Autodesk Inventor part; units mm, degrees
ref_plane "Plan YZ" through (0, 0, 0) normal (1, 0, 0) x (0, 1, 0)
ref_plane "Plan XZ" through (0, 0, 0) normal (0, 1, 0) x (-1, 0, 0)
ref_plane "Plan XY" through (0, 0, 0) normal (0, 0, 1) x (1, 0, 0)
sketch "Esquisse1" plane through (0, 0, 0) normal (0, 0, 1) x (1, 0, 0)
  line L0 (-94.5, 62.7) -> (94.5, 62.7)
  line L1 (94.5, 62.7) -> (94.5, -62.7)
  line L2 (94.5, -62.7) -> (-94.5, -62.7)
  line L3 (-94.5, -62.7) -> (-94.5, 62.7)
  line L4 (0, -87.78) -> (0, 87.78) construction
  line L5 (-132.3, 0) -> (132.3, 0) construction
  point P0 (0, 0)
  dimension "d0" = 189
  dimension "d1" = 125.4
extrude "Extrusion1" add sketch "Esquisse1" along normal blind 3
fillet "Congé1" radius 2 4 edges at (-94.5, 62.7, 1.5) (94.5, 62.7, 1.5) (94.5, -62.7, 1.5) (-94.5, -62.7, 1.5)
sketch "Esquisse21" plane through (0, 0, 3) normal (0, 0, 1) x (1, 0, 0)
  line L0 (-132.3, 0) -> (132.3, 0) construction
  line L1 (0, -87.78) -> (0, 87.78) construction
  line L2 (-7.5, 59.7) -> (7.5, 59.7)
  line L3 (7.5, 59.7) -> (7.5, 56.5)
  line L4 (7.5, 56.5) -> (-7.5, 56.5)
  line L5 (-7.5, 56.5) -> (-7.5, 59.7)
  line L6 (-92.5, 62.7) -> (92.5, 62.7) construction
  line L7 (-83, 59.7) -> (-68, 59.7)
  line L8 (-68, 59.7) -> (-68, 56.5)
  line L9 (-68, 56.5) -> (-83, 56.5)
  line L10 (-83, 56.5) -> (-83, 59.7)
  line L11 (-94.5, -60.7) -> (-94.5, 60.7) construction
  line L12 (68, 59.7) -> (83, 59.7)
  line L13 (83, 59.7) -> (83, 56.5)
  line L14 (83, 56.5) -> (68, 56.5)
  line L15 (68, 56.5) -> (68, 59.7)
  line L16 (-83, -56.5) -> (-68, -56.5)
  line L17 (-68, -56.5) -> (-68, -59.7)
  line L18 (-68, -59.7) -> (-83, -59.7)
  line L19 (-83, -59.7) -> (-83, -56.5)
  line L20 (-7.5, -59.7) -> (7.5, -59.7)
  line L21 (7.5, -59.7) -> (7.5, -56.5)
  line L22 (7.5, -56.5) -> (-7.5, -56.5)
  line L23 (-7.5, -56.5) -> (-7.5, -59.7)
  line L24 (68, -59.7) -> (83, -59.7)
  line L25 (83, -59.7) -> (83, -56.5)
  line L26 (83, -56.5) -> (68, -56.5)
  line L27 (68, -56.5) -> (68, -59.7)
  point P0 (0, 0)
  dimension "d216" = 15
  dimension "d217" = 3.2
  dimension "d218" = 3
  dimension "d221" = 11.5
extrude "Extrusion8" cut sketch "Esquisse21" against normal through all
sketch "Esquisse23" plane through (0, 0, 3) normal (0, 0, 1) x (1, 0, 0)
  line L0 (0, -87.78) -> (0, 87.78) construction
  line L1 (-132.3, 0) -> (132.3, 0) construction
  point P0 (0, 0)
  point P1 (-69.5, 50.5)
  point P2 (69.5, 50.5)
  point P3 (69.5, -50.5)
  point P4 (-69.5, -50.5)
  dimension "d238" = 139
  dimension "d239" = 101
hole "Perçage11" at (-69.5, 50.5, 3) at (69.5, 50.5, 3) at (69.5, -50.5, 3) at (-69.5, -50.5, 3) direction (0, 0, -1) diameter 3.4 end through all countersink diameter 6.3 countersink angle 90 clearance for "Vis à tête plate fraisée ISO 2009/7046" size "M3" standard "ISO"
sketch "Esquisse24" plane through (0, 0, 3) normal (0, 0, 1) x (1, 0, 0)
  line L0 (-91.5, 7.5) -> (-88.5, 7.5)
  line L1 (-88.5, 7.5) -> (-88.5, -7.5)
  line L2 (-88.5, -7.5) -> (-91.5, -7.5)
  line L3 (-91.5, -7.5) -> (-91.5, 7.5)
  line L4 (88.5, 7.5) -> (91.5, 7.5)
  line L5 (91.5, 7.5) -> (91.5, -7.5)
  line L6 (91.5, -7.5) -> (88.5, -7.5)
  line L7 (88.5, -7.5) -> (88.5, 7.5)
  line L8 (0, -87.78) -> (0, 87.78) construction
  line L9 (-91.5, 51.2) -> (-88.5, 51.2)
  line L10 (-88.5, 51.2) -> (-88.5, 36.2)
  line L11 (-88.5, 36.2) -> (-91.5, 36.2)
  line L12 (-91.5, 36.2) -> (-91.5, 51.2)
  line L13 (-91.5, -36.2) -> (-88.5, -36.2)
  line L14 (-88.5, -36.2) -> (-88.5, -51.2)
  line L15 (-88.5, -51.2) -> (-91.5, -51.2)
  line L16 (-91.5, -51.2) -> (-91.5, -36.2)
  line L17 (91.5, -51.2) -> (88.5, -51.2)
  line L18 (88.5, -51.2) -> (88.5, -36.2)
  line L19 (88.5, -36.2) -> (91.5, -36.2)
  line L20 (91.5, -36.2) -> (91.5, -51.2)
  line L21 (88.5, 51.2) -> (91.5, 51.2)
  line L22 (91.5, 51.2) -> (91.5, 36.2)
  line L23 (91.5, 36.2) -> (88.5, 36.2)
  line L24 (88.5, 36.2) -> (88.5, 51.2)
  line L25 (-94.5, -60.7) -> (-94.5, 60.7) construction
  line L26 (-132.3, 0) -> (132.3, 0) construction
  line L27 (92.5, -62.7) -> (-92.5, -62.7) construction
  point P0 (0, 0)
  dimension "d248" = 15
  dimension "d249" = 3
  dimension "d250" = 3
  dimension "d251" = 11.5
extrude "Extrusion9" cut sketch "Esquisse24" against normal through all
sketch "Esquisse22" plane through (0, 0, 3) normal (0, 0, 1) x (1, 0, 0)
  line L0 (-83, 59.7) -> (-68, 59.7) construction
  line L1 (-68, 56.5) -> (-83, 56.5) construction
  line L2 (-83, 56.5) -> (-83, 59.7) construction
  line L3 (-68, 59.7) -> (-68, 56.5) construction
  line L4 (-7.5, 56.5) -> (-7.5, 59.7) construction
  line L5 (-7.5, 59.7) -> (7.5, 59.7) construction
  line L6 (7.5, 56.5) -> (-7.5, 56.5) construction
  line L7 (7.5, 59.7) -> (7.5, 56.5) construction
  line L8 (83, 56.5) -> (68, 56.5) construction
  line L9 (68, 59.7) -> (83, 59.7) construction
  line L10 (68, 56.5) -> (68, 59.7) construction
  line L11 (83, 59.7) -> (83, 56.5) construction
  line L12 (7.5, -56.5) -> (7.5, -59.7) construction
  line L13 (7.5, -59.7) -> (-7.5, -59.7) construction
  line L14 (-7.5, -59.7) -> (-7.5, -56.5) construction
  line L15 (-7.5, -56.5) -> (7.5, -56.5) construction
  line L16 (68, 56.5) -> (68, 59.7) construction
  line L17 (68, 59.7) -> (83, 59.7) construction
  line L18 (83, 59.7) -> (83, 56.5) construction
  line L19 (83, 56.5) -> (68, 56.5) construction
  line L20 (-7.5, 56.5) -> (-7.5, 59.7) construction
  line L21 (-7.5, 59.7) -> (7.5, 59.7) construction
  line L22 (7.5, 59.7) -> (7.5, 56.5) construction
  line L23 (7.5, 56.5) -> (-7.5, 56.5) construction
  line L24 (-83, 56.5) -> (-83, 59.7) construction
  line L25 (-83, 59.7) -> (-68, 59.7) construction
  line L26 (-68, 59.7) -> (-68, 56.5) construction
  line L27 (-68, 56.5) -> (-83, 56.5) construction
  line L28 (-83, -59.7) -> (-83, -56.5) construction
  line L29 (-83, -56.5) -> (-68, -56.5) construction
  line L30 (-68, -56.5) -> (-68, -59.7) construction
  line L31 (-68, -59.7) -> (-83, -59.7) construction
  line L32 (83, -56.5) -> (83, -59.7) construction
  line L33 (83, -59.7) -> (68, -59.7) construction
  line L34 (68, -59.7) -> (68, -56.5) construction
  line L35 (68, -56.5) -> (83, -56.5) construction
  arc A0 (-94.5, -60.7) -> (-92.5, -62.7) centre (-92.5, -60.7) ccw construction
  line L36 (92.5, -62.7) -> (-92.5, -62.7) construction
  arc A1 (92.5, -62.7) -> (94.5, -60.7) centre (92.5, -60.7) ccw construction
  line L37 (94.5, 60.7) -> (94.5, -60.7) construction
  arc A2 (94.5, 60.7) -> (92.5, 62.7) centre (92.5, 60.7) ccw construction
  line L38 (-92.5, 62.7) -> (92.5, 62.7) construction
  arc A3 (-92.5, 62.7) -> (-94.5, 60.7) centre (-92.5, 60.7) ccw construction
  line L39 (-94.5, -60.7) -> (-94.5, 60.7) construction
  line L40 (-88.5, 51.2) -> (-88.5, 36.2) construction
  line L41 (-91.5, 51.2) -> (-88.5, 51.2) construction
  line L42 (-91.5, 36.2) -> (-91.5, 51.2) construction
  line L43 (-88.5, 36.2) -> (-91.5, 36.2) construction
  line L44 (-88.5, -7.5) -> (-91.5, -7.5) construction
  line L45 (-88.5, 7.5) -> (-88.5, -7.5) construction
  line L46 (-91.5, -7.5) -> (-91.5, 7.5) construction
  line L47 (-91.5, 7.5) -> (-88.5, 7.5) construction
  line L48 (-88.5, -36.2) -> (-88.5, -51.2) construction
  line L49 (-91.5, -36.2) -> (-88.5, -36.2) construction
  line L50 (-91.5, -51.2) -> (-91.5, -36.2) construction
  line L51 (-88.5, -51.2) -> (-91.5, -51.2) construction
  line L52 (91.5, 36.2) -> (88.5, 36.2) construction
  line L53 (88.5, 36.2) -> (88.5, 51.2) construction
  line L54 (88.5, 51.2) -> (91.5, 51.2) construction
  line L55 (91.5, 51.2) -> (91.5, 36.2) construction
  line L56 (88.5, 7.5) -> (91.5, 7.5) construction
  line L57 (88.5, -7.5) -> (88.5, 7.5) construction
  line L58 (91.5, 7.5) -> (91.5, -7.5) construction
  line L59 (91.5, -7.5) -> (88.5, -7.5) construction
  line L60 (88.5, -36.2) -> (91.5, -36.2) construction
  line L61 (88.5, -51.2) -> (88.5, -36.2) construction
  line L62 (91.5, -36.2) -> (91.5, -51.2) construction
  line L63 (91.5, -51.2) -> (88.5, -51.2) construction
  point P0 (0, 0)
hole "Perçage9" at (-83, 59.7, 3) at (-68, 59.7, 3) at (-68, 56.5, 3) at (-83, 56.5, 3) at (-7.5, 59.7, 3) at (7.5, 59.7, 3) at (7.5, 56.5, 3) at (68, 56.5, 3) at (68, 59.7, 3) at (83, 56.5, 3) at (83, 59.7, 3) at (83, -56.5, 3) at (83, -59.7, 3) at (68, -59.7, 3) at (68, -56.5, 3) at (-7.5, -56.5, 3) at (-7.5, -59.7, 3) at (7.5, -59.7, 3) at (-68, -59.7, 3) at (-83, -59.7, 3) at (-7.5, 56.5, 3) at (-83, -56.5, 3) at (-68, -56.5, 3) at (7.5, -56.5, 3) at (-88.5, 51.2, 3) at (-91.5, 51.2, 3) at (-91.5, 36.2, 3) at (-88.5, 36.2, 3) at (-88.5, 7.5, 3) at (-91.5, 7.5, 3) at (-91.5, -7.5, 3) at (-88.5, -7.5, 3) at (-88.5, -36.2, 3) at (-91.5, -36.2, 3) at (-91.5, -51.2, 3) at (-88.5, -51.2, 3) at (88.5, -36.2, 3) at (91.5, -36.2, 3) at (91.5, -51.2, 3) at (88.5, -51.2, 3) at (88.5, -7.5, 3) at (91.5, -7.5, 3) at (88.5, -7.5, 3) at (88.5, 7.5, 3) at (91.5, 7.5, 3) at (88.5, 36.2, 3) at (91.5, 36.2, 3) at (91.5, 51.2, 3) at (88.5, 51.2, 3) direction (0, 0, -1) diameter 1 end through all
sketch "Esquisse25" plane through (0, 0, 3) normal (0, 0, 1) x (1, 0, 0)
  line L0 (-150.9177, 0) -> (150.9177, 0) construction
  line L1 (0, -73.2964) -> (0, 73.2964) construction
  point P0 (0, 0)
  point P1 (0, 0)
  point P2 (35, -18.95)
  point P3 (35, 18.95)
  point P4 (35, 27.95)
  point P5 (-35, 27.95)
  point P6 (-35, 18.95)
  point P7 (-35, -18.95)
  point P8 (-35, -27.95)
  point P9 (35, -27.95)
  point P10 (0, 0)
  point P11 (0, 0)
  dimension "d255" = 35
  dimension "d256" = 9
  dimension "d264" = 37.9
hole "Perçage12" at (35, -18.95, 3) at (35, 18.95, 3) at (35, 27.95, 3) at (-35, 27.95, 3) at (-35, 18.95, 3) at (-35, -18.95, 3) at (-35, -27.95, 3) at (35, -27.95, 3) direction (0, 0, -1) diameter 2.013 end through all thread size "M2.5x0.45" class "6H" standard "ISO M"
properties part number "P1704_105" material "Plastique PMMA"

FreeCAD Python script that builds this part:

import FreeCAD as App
import Part
import Sketcher

V = App.Vector
Q = App.Units.Quantity


def edges_at(feature, points):
    """Names of the edges that pass closest to the given points."""
    edges = feature.Shape.Edges
    near = lambda p: min(range(len(edges)), key=lambda i: edges[i].distToShape(Part.Vertex(*p))[0])
    return sorted({f"Edge{near(p) + 1}" for p in points})


def add_polygon(sketch, points):
    """Adds a closed chain of lines whose ends are joined by coincident constraints."""
    first, n = sketch.GeometryCount, len(points)
    for a, b in zip(points, points[1:] + points[:1]):
        sketch.addGeometry(Part.LineSegment(App.Vector(*a, 0), App.Vector(*b, 0)), False)
    for i in range(n):
        sketch.addConstraint(Sketcher.Constraint("Coincident", first + i, 2, first + (i + 1) % n, 1))

doc = App.newDocument("Part")
body = doc.addObject("PartDesign::Body", "Body")

# Sketch on XY plane
sketch1 = body.newObject("Sketcher::SketchObject", "Sketch")
sketch1.AttachmentSupport = (doc.getObject("XY_Plane"), [""])
sketch1.MapMode = "FlatFace"
add_polygon(sketch1, [(94.5, 62.7), (-94.5, 62.7), (-94.5, -62.7), (94.5, -62.7)])  # lines 0-3
sketch1.addConstraint([
    Sketcher.Constraint("Horizontal", 0),
    Sketcher.Constraint("Vertical", 1),
    Sketcher.Constraint("Horizontal", 2),
    Sketcher.Constraint("Vertical", 3),
    Sketcher.Constraint("Symmetric", 0, 2, 2, 2, -1, 1),
    Sketcher.Constraint("DistanceX", 0, 2, 0, 1, Q("189 mm")),
    Sketcher.Constraint("DistanceY", 1, 2, 1, 1, Q("125.4 mm")),
])
pad1 = body.newObject("PartDesign::Pad", "Pad")
pad1.Profile = sketch1
pad1.Length = 3
doc.recompute()

fillet = body.newObject("PartDesign::Fillet", "Fillet")
fillet.Base = (pad1, edges_at(pad1, [
    (-94.5, 62.7, 1.5),
    (94.5, 62.7, 1.5),
    (94.5, -62.7, 1.5),
    (-94.5, -62.7, 1.5),
]))
fillet.Radius = 2

# Sketch on XY plane
sketch2 = body.newObject("Sketcher::SketchObject", "Sketch001")
sketch2.AttachmentSupport = (doc.getObject("XY_Plane"), [""])
sketch2.MapMode = "FlatFace"
sketch2.AttachmentOffset = App.Placement(V(0, 0, 3), App.Rotation())
add_polygon(sketch2, [(7.5, 59.7), (-7.5, 59.7), (-7.5, 56.5), (7.5, 56.5)])  # lines 0-3
add_polygon(sketch2, [(-68, 59.7), (-83, 59.7), (-83, 56.5), (-68, 56.5)])  # lines 4-7
add_polygon(sketch2, [(83, 59.7), (68, 59.7), (68, 56.5), (83, 56.5)])  # lines 8-11
add_polygon(sketch2, [(-68, -56.5), (-83, -56.5), (-83, -59.7), (-68, -59.7)])  # lines 12-15
add_polygon(sketch2, [(-7.5, -56.5), (-7.5, -59.7), (7.5, -59.7), (7.5, -56.5)])  # lines 16-19
add_polygon(sketch2, [(68, -56.5), (68, -59.7), (83, -59.7), (83, -56.5)])  # lines 20-23
sketch2.addConstraint([
    Sketcher.Constraint("Horizontal", 0),
    Sketcher.Constraint("Vertical", 1),
    Sketcher.Constraint("Horizontal", 2),
    Sketcher.Constraint("Vertical", 3),
    Sketcher.Constraint("Horizontal", 4),
    Sketcher.Constraint("Vertical", 5),
    Sketcher.Constraint("Horizontal", 6),
    Sketcher.Constraint("Vertical", 7),
    Sketcher.Constraint("Horizontal", 8),
    Sketcher.Constraint("Vertical", 9),
    Sketcher.Constraint("Horizontal", 10),
    Sketcher.Constraint("Vertical", 11),
    Sketcher.Constraint("Horizontal", 12),
    Sketcher.Constraint("Vertical", 13),
    Sketcher.Constraint("Horizontal", 14),
    Sketcher.Constraint("Vertical", 15),
    Sketcher.Constraint("Vertical", 16),
    Sketcher.Constraint("Horizontal", 17),
    Sketcher.Constraint("Vertical", 18),
    Sketcher.Constraint("Horizontal", 19),
    Sketcher.Constraint("Vertical", 20),
    Sketcher.Constraint("Horizontal", 21),
    Sketcher.Constraint("Vertical", 22),
    Sketcher.Constraint("Horizontal", 23),
    Sketcher.Constraint("Symmetric", 10, 2, 12, 2, -1, 1),
    Sketcher.Constraint("Symmetric", 8, 2, 14, 2, -1, 1),
    Sketcher.Constraint("Symmetric", 3, 2, 16, 2, -1, 1),
    Sketcher.Constraint("Symmetric", 1, 2, 18, 2, -1, 1),
    Sketcher.Constraint("Symmetric", 7, 2, 20, 2, -1, 1),
    Sketcher.Constraint("Symmetric", 5, 2, 22, 2, -1, 1),
    Sketcher.Constraint("Symmetric", 7, 2, 8, 2, -2),
    Sketcher.Constraint("Symmetric", 5, 2, 10, 2, -2),
    Sketcher.Constraint("Horizontal", 3, 2, 4, 2),
    Sketcher.Constraint("Horizontal", 2, 2, 5, 2),
    Sketcher.Constraint("Vertical", 1, 2, 16, 2),
    Sketcher.Constraint("Equal", 2, 4),
    Sketcher.Constraint("DistanceX", 0, 2, 0, 1, Q("15 mm")),
    Sketcher.Constraint("DistanceY", 1, 2, 1, 1, Q("3.2 mm")),
    Sketcher.Constraint("DistanceX", 4, 2, -1, 1, Q("83 mm")),
    Sketcher.Constraint("DistanceY", 12, 2, 5, 2, Q("113 mm")),
])
pocket1 = body.newObject("PartDesign::Pocket", "Pocket")
pocket1.Profile = sketch2
pocket1.Type = "ThroughAll"

# Sketch on XY plane
sketch3 = body.newObject("Sketcher::SketchObject", "Sketch002")
sketch3.AttachmentSupport = (doc.getObject("XY_Plane"), [""])
sketch3.MapMode = "FlatFace"
sketch3.AttachmentOffset = App.Placement(V(0, 0, 3), App.Rotation())
sketch3.addGeometry([
    Part.Circle(V(-69.5, 50.5, 0), V(0, 0, 1), 1.7),
    Part.Circle(V(69.5, 50.5, 0), V(0, 0, 1), 1.7),
    Part.Circle(V(69.5, -50.5, 0), V(0, 0, 1), 1.7),
    Part.Circle(V(-69.5, -50.5, 0), V(0, 0, 1), 1.7),
], False)
sketch3.addConstraint([
    Sketcher.Constraint("Equal", 0, 1),
    Sketcher.Constraint("Equal", 1, 2),
    Sketcher.Constraint("Equal", 2, 3),
    Sketcher.Constraint("Symmetric", 0, 3, 2, 3, -1, 1),
    Sketcher.Constraint("Symmetric", 1, 3, 3, 3, -1, 1),
    Sketcher.Constraint("Symmetric", 0, 3, 1, 3, -2),
    Sketcher.Constraint("Diameter", 0, Q("3.4 mm")),
    Sketcher.Constraint("DistanceX", 0, 3, 1, 3, Q("139 mm")),
    Sketcher.Constraint("DistanceY", 2, 3, 1, 3, Q("101 mm")),
])
doc.recompute()
hole = body.newObject("PartDesign::Hole", "Hole")
hole.Profile = sketch3
hole.ThreadType = "None"
hole.Diameter = 3.4
hole.DepthType = "ThroughAll"
hole.HoleCutType = "Countersink"
hole.HoleCutDiameter = 6.3
hole.HoleCutCountersinkAngle = 90

# Sketch on XY plane
sketch4 = body.newObject("Sketcher::SketchObject", "Sketch003")
sketch4.AttachmentSupport = (doc.getObject("XY_Plane"), [""])
sketch4.MapMode = "FlatFace"
sketch4.AttachmentOffset = App.Placement(V(0, 0, 3), App.Rotation())
add_polygon(sketch4, [(-88.5, 7.5), (-91.5, 7.5), (-91.5, -7.5), (-88.5, -7.5)])  # lines 0-3
add_polygon(sketch4, [(91.5, 7.5), (88.5, 7.5), (88.5, -7.5), (91.5, -7.5)])  # lines 4-7
add_polygon(sketch4, [(-88.5, 51.2), (-91.5, 51.2), (-91.5, 36.2), (-88.5, 36.2)])  # lines 8-11
add_polygon(sketch4, [(-88.5, -36.2), (-91.5, -36.2), (-91.5, -51.2), (-88.5, -51.2)])  # lines 12-15
add_polygon(sketch4, [(88.5, -51.2), (91.5, -51.2), (91.5, -36.2), (88.5, -36.2)])  # lines 16-19
add_polygon(sketch4, [(91.5, 51.2), (88.5, 51.2), (88.5, 36.2), (91.5, 36.2)])  # lines 20-23
sketch4.addConstraint([
    Sketcher.Constraint("Horizontal", 0),
    Sketcher.Constraint("Vertical", 1),
    Sketcher.Constraint("Horizontal", 2),
    Sketcher.Constraint("Vertical", 3),
    Sketcher.Constraint("Horizontal", 4),
    Sketcher.Constraint("Vertical", 5),
    Sketcher.Constraint("Horizontal", 6),
    Sketcher.Constraint("Vertical", 7),
    Sketcher.Constraint("Horizontal", 8),
    Sketcher.Constraint("Vertical", 9),
    Sketcher.Constraint("Horizontal", 10),
    Sketcher.Constraint("Vertical", 11),
    Sketcher.Constraint("Horizontal", 12),
    Sketcher.Constraint("Vertical", 13),
    Sketcher.Constraint("Horizontal", 14),
    Sketcher.Constraint("Vertical", 15),
    Sketcher.Constraint("Horizontal", 16),
    Sketcher.Constraint("Vertical", 17),
    Sketcher.Constraint("Horizontal", 18),
    Sketcher.Constraint("Vertical", 19),
    Sketcher.Constraint("Horizontal", 20),
    Sketcher.Constraint("Vertical", 21),
    Sketcher.Constraint("Horizontal", 22),
    Sketcher.Constraint("Vertical", 23),
    Sketcher.Constraint("Symmetric", 2, 2, 4, 2, -1, 1),
    Sketcher.Constraint("Symmetric", 0, 2, 6, 2, -1, 1),
    Sketcher.Constraint("Symmetric", 8, 2, 16, 2, -1, 1),
    Sketcher.Constraint("Symmetric", 10, 2, 18, 2, -1, 1),
    Sketcher.Constraint("Symmetric", 14, 2, 20, 2, -1, 1),
    Sketcher.Constraint("Symmetric", 12, 2, 22, 2, -1, 1),
    Sketcher.Constraint("Symmetric", 13, 2, 16, 2, -2),
    Sketcher.Constraint("Symmetric", 15, 2, 18, 2, -2),
    Sketcher.Constraint("Horizontal", 3, 2, 4, 2),
    Sketcher.Constraint("Vertical", 1, 2, 8, 2),
    Sketcher.Constraint("Vertical", 3, 2, 10, 2),
    Sketcher.Constraint("Equal", 7, 9),
    Sketcher.Constraint("DistanceX", 0, 2, 0, 1, Q("3 mm")),
    Sketcher.Constraint("DistanceY", 1, 2, 1, 1, Q("15 mm")),
    Sketcher.Constraint("DistanceX", 3, 2, 4, 2, Q("177 mm")),
    Sketcher.Constraint("DistanceY", -1, 1, 8, 2, Q("51.2 mm")),
])
pocket2 = body.newObject("PartDesign::Pocket", "Pocket001")
pocket2.Profile = sketch4
pocket2.Type = "ThroughAll"

# Sketch on XY plane
sketch5 = body.newObject("Sketcher::SketchObject", "Sketch004")
sketch5.AttachmentSupport = (doc.getObject("XY_Plane"), [""])
sketch5.MapMode = "FlatFace"
sketch5.AttachmentOffset = App.Placement(V(0, 0, 3), App.Rotation())
sketch5.addGeometry([
    Part.Circle(V(-83, 59.7, 0), V(0, 0, 1), 0.5),  # 0
    Part.Circle(V(-68, 59.7, 0), V(0, 0, 1), 0.5),  # 1
    Part.Circle(V(-68, 56.5, 0), V(0, 0, 1), 0.5),  # 2
    Part.Circle(V(-83, 56.5, 0), V(0, 0, 1), 0.5),  # 3
    Part.Circle(V(-7.5, 59.7, 0), V(0, 0, 1), 0.5),  # 4
    Part.Circle(V(7.5, 59.7, 0), V(0, 0, 1), 0.5),  # 5
    Part.Circle(V(7.5, 56.5, 0), V(0, 0, 1), 0.5),  # 6
    Part.Circle(V(68, 56.5, 0), V(0, 0, 1), 0.5),  # 7
    Part.Circle(V(68, 59.7, 0), V(0, 0, 1), 0.5),  # 8
    Part.Circle(V(83, 56.5, 0), V(0, 0, 1), 0.5),  # 9
    Part.Circle(V(83, 59.7, 0), V(0, 0, 1), 0.5),  # 10
    Part.Circle(V(83, -56.5, 0), V(0, 0, 1), 0.5),  # 11
    Part.Circle(V(83, -59.7, 0), V(0, 0, 1), 0.5),  # 12
    Part.Circle(V(68, -59.7, 0), V(0, 0, 1), 0.5),  # 13
    Part.Circle(V(68, -56.5, 0), V(0, 0, 1), 0.5),  # 14
    Part.Circle(V(-7.5, -56.5, 0), V(0, 0, 1), 0.5),  # 15
    Part.Circle(V(-7.5, -59.7, 0), V(0, 0, 1), 0.5),  # 16
    Part.Circle(V(7.5, -59.7, 0), V(0, 0, 1), 0.5),  # 17
    Part.Circle(V(-68, -59.7, 0), V(0, 0, 1), 0.5),  # 18
    Part.Circle(V(-83, -59.7, 0), V(0, 0, 1), 0.5),  # 19
    Part.Circle(V(-7.5, 56.5, 0), V(0, 0, 1), 0.5),  # 20
    Part.Circle(V(-83, -56.5, 0), V(0, 0, 1), 0.5),  # 21
    Part.Circle(V(-68, -56.5, 0), V(0, 0, 1), 0.5),  # 22
    Part.Circle(V(7.5, -56.5, 0), V(0, 0, 1), 0.5),  # 23
    Part.Circle(V(-88.5, 51.2, 0), V(0, 0, 1), 0.5),  # 24
    Part.Circle(V(-91.5, 51.2, 0), V(0, 0, 1), 0.5),  # 25
    Part.Circle(V(-91.5, 36.2, 0), V(0, 0, 1), 0.5),  # 26
    Part.Circle(V(-88.5, 36.2, 0), V(0, 0, 1), 0.5),  # 27
    Part.Circle(V(-88.5, 7.5, 0), V(0, 0, 1), 0.5),  # 28
    Part.Circle(V(-91.5, 7.5, 0), V(0, 0, 1), 0.5),  # 29
    Part.Circle(V(-91.5, -7.5, 0), V(0, 0, 1), 0.5),  # 30
    Part.Circle(V(-88.5, -7.5, 0), V(0, 0, 1), 0.5),  # 31
    Part.Circle(V(-88.5, -36.2, 0), V(0, 0, 1), 0.5),  # 32
    Part.Circle(V(-91.5, -36.2, 0), V(0, 0, 1), 0.5),  # 33
    Part.Circle(V(-91.5, -51.2, 0), V(0, 0, 1), 0.5),  # 34
    Part.Circle(V(-88.5, -51.2, 0), V(0, 0, 1), 0.5),  # 35
    Part.Circle(V(88.5, -36.2, 0), V(0, 0, 1), 0.5),  # 36
    Part.Circle(V(91.5, -36.2, 0), V(0, 0, 1), 0.5),  # 37
    Part.Circle(V(91.5, -51.2, 0), V(0, 0, 1), 0.5),  # 38
    Part.Circle(V(88.5, -51.2, 0), V(0, 0, 1), 0.5),  # 39
    Part.Circle(V(88.5, -7.5, 0), V(0, 0, 1), 0.5),  # 40
    Part.Circle(V(91.5, -7.5, 0), V(0, 0, 1), 0.5),  # 41
    Part.Circle(V(88.5, -7.5, 0), V(0, 0, 1), 0.5),  # 42
    Part.Circle(V(88.5, 7.5, 0), V(0, 0, 1), 0.5),  # 43
    Part.Circle(V(91.5, 7.5, 0), V(0, 0, 1), 0.5),  # 44
    Part.Circle(V(88.5, 36.2, 0), V(0, 0, 1), 0.5),  # 45
    Part.Circle(V(91.5, 36.2, 0), V(0, 0, 1), 0.5),  # 46
    Part.Circle(V(91.5, 51.2, 0), V(0, 0, 1), 0.5),  # 47
    Part.Circle(V(88.5, 51.2, 0), V(0, 0, 1), 0.5),  # 48
], False)
sketch5.addConstraint([
    Sketcher.Constraint("Coincident", 42, 3, 40, 3),
    Sketcher.Constraint("Equal", 0, 1),
    Sketcher.Constraint("Equal", 1, 2),
    Sketcher.Constraint("Equal", 2, 3),
    Sketcher.Constraint("Equal", 3, 4),
    Sketcher.Constraint("Equal", 4, 5),
    Sketcher.Constraint("Equal", 5, 6),
    Sketcher.Constraint("Equal", 6, 7),
    Sketcher.Constraint("Equal", 7, 8),
    Sketcher.Constraint("Equal", 8, 9),
    Sketcher.Constraint("Equal", 9, 10),
    Sketcher.Constraint("Equal", 10, 11),
    Sketcher.Constraint("Equal", 11, 12),
    Sketcher.Constraint("Equal", 12, 13),
    Sketcher.Constraint("Equal", 13, 14),
    Sketcher.Constraint("Equal", 14, 15),
    Sketcher.Constraint("Equal", 15, 16),
    Sketcher.Constraint("Equal", 16, 17),
    Sketcher.Constraint("Equal", 17, 18),
    Sketcher.Constraint("Equal", 18, 19),
    Sketcher.Constraint("Equal", 19, 20),
    Sketcher.Constraint("Equal", 20, 21),
    Sketcher.Constraint("Equal", 21, 22),
    Sketcher.Constraint("Equal", 22, 23),
    Sketcher.Constraint("Equal", 23, 24),
    Sketcher.Constraint("Equal", 24, 25),
    Sketcher.Constraint("Equal", 25, 26),
    Sketcher.Constraint("Equal", 26, 27),
    Sketcher.Constraint("Equal", 27, 28),
    Sketcher.Constraint("Equal", 28, 29),
    Sketcher.Constraint("Equal", 29, 30),
    Sketcher.Constraint("Equal", 30, 31),
    Sketcher.Constraint("Equal", 31, 32),
    Sketcher.Constraint("Equal", 32, 33),
    Sketcher.Constraint("Equal", 33, 34),
    Sketcher.Constraint("Equal", 34, 35),
    Sketcher.Constraint("Equal", 35, 36),
    Sketcher.Constraint("Equal", 36, 37),
    Sketcher.Constraint("Equal", 37, 38),
    Sketcher.Constraint("Equal", 38, 39),
    Sketcher.Constraint("Equal", 39, 40),
    Sketcher.Constraint("Equal", 40, 41),
    Sketcher.Constraint("Equal", 41, 42),
    Sketcher.Constraint("Equal", 42, 43),
    Sketcher.Constraint("Equal", 43, 44),
    Sketcher.Constraint("Equal", 44, 45),
    Sketcher.Constraint("Equal", 45, 46),
    Sketcher.Constraint("Equal", 46, 47),
    Sketcher.Constraint("Equal", 47, 48),
    Sketcher.Constraint("Symmetric", 3, 3, 11, 3, -1, 1),
    Sketcher.Constraint("Symmetric", 0, 3, 12, 3, -1, 1),
    Sketcher.Constraint("Symmetric", 1, 3, 13, 3, -1, 1),
    Sketcher.Constraint("Symmetric", 2, 3, 14, 3, -1, 1),
    Sketcher.Constraint("Symmetric", 6, 3, 15, 3, -1, 1),
    Sketcher.Constraint("Symmetric", 5, 3, 16, 3, -1, 1),
    Sketcher.Constraint("Symmetric", 4, 3, 17, 3, -1, 1),
    Sketcher.Constraint("Symmetric", 8, 3, 18, 3, -1, 1),
    Sketcher.Constraint("Symmetric", 10, 3, 19, 3, -1, 1),
    Sketcher.Constraint("Symmetric", 9, 3, 21, 3, -1, 1),
    Sketcher.Constraint("Symmetric", 7, 3, 22, 3, -1, 1),
    Sketcher.Constraint("Symmetric", 20, 3, 23, 3, -1, 1),
    Sketcher.Constraint("Symmetric", 27, 3, 36, 3, -1, 1),
    Sketcher.Constraint("Symmetric", 26, 3, 37, 3, -1, 1),
    Sketcher.Constraint("Symmetric", 25, 3, 38, 3, -1, 1),
    Sketcher.Constraint("Symmetric", 24, 3, 39, 3, -1, 1),
    Sketcher.Constraint("Symmetric", 28, 3, 40, 3, -1, 1),
    Sketcher.Constraint("Symmetric", 29, 3, 41, 3, -1, 1),
    Sketcher.Constraint("Symmetric", 31, 3, 43, 3, -1, 1),
    Sketcher.Constraint("Symmetric", 30, 3, 44, 3, -1, 1),
    Sketcher.Constraint("Symmetric", 32, 3, 45, 3, -1, 1),
    Sketcher.Constraint("Symmetric", 33, 3, 46, 3, -1, 1),
    Sketcher.Constraint("Symmetric", 34, 3, 47, 3, -1, 1),
    Sketcher.Constraint("Symmetric", 35, 3, 48, 3, -1, 1),
    Sketcher.Constraint("Symmetric", 4, 3, 5, 3, -2),
    Sketcher.Constraint("Symmetric", 2, 3, 7, 3, -2),
    Sketcher.Constraint("Symmetric", 1, 3, 8, 3, -2),
    Sketcher.Constraint("Symmetric", 3, 3, 9, 3, -2),
    Sketcher.Constraint("Symmetric", 0, 3, 10, 3, -2),
    Sketcher.Constraint("Symmetric", 6, 3, 20, 3, -2),
    Sketcher.Constraint("Symmetric", 32, 3, 36, 3, -2),
    Sketcher.Constraint("Symmetric", 33, 3, 37, 3, -2),
    Sketcher.Constraint("Symmetric", 34, 3, 38, 3, -2),
    Sketcher.Constraint("Symmetric", 35, 3, 39, 3, -2),
    Sketcher.Constraint("Symmetric", 31, 3, 40, 3, -2),
    Sketcher.Constraint("Symmetric", 30, 3, 41, 3, -2),
    Sketcher.Constraint("Horizontal", 0, 3, 1, 3),
    Sketcher.Constraint("Horizontal", 2, 3, 3, 3),
    Sketcher.Constraint("Horizontal", 1, 3, 4, 3),
    Sketcher.Constraint("Horizontal", 3, 3, 6, 3),
    Sketcher.Constraint("Horizontal", 24, 3, 25, 3),
    Sketcher.Constraint("Horizontal", 26, 3, 27, 3),
    Sketcher.Constraint("Horizontal", 28, 3, 29, 3),
    Sketcher.Constraint("Vertical", 1, 3, 2, 3),
    Sketcher.Constraint("Vertical", 0, 3, 3, 3),
    Sketcher.Constraint("Vertical", 5, 3, 6, 3),
    Sketcher.Constraint("Vertical", 25, 3, 26, 3),
    Sketcher.Constraint("Vertical", 24, 3, 27, 3),
    Sketcher.Constraint("Vertical", 27, 3, 28, 3),
    Sketcher.Constraint("Vertical", 26, 3, 29, 3),
    Sketcher.Constraint("Diameter", 0, Q("1 mm")),
    Sketcher.Constraint("DistanceX", 0, 3, -1, 1, Q("83 mm")),
    Sketcher.Constraint("DistanceX", 1, 3, -1, 1, Q("68 mm")),
    Sketcher.Constraint("DistanceX", 4, 3, 5, 3, Q("15 mm")),
    Sketcher.Constraint("DistanceY", 11, 3, 9, 3, Q("113 mm")),
    Sketcher.Constraint("DistanceX", 24, 3, 20, 3, Q("81 mm")),
    Sketcher.Constraint("DistanceX", 25, 3, 24, 3, Q("3 mm")),
    Sketcher.Constraint("DistanceY", 26, 3, 25, 3, Q("15 mm")),
    Sketcher.Constraint("DistanceY", 28, 3, 3, 3, Q("49 mm")),
    Sketcher.Constraint("DistanceY", -1, 1, 0, 3, Q("59.7 mm")),
    Sketcher.Constraint("DistanceY", -1, 1, 24, 3, Q("51.2 mm")),
])
doc.recompute()
hole2 = body.newObject("PartDesign::Hole", "Hole001")
hole2.Profile = sketch5
hole2.ThreadType = "None"
hole2.Diameter = 1
hole2.DepthType = "ThroughAll"

# Sketch on XY plane
sketch6 = body.newObject("Sketcher::SketchObject", "Sketch005")
sketch6.AttachmentSupport = (doc.getObject("XY_Plane"), [""])
sketch6.MapMode = "FlatFace"
sketch6.AttachmentOffset = App.Placement(V(0, 0, 3), App.Rotation())
sketch6.addGeometry([
    Part.Circle(V(35, -18.95, 0), V(0, 0, 1), 1.0065),  # 0
    Part.Circle(V(35, 18.95, 0), V(0, 0, 1), 1.0065),  # 1
    Part.Circle(V(35, 27.95, 0), V(0, 0, 1), 1.0065),  # 2
    Part.Circle(V(-35, 27.95, 0), V(0, 0, 1), 1.0065),  # 3
    Part.Circle(V(-35, 18.95, 0), V(0, 0, 1), 1.0065),  # 4
    Part.Circle(V(-35, -18.95, 0), V(0, 0, 1), 1.0065),  # 5
    Part.Circle(V(-35, -27.95, 0), V(0, 0, 1), 1.0065),  # 6
    Part.Circle(V(35, -27.95, 0), V(0, 0, 1), 1.0065),  # 7
], False)
sketch6.addConstraint([
    Sketcher.Constraint("Equal", 0, 1),
    Sketcher.Constraint("Equal", 1, 2),
    Sketcher.Constraint("Equal", 2, 3),
    Sketcher.Constraint("Equal", 3, 4),
    Sketcher.Constraint("Equal", 4, 5),
    Sketcher.Constraint("Equal", 5, 6),
    Sketcher.Constraint("Equal", 6, 7),
    Sketcher.Constraint("Symmetric", 0, 3, 4, 3, -1, 1),
    Sketcher.Constraint("Symmetric", 1, 3, 5, 3, -1, 1),
    Sketcher.Constraint("Symmetric", 2, 3, 6, 3, -1, 1),
    Sketcher.Constraint("Symmetric", 3, 3, 7, 3, -1, 1),
    Sketcher.Constraint("Symmetric", 2, 3, 3, 3, -2),
    Sketcher.Constraint("Symmetric", 1, 3, 4, 3, -2),
    Sketcher.Constraint("Vertical", 1, 3, 2, 3),
    Sketcher.Constraint("Diameter", 0, Q("2.013 mm")),
    Sketcher.Constraint("DistanceX", -1, 1, 0, 3, Q("35 mm")),
    Sketcher.Constraint("DistanceY", 1, 3, 2, 3, Q("9 mm")),
    Sketcher.Constraint("DistanceY", 0, 3, 1, 3, Q("37.9 mm")),
])
doc.recompute()
hole3 = body.newObject("PartDesign::Hole", "Hole002")
hole3.Profile = sketch6
hole3.ThreadType = "None"
hole3.Diameter = 2.013
hole3.DepthType = "ThroughAll"

doc.recompute()
